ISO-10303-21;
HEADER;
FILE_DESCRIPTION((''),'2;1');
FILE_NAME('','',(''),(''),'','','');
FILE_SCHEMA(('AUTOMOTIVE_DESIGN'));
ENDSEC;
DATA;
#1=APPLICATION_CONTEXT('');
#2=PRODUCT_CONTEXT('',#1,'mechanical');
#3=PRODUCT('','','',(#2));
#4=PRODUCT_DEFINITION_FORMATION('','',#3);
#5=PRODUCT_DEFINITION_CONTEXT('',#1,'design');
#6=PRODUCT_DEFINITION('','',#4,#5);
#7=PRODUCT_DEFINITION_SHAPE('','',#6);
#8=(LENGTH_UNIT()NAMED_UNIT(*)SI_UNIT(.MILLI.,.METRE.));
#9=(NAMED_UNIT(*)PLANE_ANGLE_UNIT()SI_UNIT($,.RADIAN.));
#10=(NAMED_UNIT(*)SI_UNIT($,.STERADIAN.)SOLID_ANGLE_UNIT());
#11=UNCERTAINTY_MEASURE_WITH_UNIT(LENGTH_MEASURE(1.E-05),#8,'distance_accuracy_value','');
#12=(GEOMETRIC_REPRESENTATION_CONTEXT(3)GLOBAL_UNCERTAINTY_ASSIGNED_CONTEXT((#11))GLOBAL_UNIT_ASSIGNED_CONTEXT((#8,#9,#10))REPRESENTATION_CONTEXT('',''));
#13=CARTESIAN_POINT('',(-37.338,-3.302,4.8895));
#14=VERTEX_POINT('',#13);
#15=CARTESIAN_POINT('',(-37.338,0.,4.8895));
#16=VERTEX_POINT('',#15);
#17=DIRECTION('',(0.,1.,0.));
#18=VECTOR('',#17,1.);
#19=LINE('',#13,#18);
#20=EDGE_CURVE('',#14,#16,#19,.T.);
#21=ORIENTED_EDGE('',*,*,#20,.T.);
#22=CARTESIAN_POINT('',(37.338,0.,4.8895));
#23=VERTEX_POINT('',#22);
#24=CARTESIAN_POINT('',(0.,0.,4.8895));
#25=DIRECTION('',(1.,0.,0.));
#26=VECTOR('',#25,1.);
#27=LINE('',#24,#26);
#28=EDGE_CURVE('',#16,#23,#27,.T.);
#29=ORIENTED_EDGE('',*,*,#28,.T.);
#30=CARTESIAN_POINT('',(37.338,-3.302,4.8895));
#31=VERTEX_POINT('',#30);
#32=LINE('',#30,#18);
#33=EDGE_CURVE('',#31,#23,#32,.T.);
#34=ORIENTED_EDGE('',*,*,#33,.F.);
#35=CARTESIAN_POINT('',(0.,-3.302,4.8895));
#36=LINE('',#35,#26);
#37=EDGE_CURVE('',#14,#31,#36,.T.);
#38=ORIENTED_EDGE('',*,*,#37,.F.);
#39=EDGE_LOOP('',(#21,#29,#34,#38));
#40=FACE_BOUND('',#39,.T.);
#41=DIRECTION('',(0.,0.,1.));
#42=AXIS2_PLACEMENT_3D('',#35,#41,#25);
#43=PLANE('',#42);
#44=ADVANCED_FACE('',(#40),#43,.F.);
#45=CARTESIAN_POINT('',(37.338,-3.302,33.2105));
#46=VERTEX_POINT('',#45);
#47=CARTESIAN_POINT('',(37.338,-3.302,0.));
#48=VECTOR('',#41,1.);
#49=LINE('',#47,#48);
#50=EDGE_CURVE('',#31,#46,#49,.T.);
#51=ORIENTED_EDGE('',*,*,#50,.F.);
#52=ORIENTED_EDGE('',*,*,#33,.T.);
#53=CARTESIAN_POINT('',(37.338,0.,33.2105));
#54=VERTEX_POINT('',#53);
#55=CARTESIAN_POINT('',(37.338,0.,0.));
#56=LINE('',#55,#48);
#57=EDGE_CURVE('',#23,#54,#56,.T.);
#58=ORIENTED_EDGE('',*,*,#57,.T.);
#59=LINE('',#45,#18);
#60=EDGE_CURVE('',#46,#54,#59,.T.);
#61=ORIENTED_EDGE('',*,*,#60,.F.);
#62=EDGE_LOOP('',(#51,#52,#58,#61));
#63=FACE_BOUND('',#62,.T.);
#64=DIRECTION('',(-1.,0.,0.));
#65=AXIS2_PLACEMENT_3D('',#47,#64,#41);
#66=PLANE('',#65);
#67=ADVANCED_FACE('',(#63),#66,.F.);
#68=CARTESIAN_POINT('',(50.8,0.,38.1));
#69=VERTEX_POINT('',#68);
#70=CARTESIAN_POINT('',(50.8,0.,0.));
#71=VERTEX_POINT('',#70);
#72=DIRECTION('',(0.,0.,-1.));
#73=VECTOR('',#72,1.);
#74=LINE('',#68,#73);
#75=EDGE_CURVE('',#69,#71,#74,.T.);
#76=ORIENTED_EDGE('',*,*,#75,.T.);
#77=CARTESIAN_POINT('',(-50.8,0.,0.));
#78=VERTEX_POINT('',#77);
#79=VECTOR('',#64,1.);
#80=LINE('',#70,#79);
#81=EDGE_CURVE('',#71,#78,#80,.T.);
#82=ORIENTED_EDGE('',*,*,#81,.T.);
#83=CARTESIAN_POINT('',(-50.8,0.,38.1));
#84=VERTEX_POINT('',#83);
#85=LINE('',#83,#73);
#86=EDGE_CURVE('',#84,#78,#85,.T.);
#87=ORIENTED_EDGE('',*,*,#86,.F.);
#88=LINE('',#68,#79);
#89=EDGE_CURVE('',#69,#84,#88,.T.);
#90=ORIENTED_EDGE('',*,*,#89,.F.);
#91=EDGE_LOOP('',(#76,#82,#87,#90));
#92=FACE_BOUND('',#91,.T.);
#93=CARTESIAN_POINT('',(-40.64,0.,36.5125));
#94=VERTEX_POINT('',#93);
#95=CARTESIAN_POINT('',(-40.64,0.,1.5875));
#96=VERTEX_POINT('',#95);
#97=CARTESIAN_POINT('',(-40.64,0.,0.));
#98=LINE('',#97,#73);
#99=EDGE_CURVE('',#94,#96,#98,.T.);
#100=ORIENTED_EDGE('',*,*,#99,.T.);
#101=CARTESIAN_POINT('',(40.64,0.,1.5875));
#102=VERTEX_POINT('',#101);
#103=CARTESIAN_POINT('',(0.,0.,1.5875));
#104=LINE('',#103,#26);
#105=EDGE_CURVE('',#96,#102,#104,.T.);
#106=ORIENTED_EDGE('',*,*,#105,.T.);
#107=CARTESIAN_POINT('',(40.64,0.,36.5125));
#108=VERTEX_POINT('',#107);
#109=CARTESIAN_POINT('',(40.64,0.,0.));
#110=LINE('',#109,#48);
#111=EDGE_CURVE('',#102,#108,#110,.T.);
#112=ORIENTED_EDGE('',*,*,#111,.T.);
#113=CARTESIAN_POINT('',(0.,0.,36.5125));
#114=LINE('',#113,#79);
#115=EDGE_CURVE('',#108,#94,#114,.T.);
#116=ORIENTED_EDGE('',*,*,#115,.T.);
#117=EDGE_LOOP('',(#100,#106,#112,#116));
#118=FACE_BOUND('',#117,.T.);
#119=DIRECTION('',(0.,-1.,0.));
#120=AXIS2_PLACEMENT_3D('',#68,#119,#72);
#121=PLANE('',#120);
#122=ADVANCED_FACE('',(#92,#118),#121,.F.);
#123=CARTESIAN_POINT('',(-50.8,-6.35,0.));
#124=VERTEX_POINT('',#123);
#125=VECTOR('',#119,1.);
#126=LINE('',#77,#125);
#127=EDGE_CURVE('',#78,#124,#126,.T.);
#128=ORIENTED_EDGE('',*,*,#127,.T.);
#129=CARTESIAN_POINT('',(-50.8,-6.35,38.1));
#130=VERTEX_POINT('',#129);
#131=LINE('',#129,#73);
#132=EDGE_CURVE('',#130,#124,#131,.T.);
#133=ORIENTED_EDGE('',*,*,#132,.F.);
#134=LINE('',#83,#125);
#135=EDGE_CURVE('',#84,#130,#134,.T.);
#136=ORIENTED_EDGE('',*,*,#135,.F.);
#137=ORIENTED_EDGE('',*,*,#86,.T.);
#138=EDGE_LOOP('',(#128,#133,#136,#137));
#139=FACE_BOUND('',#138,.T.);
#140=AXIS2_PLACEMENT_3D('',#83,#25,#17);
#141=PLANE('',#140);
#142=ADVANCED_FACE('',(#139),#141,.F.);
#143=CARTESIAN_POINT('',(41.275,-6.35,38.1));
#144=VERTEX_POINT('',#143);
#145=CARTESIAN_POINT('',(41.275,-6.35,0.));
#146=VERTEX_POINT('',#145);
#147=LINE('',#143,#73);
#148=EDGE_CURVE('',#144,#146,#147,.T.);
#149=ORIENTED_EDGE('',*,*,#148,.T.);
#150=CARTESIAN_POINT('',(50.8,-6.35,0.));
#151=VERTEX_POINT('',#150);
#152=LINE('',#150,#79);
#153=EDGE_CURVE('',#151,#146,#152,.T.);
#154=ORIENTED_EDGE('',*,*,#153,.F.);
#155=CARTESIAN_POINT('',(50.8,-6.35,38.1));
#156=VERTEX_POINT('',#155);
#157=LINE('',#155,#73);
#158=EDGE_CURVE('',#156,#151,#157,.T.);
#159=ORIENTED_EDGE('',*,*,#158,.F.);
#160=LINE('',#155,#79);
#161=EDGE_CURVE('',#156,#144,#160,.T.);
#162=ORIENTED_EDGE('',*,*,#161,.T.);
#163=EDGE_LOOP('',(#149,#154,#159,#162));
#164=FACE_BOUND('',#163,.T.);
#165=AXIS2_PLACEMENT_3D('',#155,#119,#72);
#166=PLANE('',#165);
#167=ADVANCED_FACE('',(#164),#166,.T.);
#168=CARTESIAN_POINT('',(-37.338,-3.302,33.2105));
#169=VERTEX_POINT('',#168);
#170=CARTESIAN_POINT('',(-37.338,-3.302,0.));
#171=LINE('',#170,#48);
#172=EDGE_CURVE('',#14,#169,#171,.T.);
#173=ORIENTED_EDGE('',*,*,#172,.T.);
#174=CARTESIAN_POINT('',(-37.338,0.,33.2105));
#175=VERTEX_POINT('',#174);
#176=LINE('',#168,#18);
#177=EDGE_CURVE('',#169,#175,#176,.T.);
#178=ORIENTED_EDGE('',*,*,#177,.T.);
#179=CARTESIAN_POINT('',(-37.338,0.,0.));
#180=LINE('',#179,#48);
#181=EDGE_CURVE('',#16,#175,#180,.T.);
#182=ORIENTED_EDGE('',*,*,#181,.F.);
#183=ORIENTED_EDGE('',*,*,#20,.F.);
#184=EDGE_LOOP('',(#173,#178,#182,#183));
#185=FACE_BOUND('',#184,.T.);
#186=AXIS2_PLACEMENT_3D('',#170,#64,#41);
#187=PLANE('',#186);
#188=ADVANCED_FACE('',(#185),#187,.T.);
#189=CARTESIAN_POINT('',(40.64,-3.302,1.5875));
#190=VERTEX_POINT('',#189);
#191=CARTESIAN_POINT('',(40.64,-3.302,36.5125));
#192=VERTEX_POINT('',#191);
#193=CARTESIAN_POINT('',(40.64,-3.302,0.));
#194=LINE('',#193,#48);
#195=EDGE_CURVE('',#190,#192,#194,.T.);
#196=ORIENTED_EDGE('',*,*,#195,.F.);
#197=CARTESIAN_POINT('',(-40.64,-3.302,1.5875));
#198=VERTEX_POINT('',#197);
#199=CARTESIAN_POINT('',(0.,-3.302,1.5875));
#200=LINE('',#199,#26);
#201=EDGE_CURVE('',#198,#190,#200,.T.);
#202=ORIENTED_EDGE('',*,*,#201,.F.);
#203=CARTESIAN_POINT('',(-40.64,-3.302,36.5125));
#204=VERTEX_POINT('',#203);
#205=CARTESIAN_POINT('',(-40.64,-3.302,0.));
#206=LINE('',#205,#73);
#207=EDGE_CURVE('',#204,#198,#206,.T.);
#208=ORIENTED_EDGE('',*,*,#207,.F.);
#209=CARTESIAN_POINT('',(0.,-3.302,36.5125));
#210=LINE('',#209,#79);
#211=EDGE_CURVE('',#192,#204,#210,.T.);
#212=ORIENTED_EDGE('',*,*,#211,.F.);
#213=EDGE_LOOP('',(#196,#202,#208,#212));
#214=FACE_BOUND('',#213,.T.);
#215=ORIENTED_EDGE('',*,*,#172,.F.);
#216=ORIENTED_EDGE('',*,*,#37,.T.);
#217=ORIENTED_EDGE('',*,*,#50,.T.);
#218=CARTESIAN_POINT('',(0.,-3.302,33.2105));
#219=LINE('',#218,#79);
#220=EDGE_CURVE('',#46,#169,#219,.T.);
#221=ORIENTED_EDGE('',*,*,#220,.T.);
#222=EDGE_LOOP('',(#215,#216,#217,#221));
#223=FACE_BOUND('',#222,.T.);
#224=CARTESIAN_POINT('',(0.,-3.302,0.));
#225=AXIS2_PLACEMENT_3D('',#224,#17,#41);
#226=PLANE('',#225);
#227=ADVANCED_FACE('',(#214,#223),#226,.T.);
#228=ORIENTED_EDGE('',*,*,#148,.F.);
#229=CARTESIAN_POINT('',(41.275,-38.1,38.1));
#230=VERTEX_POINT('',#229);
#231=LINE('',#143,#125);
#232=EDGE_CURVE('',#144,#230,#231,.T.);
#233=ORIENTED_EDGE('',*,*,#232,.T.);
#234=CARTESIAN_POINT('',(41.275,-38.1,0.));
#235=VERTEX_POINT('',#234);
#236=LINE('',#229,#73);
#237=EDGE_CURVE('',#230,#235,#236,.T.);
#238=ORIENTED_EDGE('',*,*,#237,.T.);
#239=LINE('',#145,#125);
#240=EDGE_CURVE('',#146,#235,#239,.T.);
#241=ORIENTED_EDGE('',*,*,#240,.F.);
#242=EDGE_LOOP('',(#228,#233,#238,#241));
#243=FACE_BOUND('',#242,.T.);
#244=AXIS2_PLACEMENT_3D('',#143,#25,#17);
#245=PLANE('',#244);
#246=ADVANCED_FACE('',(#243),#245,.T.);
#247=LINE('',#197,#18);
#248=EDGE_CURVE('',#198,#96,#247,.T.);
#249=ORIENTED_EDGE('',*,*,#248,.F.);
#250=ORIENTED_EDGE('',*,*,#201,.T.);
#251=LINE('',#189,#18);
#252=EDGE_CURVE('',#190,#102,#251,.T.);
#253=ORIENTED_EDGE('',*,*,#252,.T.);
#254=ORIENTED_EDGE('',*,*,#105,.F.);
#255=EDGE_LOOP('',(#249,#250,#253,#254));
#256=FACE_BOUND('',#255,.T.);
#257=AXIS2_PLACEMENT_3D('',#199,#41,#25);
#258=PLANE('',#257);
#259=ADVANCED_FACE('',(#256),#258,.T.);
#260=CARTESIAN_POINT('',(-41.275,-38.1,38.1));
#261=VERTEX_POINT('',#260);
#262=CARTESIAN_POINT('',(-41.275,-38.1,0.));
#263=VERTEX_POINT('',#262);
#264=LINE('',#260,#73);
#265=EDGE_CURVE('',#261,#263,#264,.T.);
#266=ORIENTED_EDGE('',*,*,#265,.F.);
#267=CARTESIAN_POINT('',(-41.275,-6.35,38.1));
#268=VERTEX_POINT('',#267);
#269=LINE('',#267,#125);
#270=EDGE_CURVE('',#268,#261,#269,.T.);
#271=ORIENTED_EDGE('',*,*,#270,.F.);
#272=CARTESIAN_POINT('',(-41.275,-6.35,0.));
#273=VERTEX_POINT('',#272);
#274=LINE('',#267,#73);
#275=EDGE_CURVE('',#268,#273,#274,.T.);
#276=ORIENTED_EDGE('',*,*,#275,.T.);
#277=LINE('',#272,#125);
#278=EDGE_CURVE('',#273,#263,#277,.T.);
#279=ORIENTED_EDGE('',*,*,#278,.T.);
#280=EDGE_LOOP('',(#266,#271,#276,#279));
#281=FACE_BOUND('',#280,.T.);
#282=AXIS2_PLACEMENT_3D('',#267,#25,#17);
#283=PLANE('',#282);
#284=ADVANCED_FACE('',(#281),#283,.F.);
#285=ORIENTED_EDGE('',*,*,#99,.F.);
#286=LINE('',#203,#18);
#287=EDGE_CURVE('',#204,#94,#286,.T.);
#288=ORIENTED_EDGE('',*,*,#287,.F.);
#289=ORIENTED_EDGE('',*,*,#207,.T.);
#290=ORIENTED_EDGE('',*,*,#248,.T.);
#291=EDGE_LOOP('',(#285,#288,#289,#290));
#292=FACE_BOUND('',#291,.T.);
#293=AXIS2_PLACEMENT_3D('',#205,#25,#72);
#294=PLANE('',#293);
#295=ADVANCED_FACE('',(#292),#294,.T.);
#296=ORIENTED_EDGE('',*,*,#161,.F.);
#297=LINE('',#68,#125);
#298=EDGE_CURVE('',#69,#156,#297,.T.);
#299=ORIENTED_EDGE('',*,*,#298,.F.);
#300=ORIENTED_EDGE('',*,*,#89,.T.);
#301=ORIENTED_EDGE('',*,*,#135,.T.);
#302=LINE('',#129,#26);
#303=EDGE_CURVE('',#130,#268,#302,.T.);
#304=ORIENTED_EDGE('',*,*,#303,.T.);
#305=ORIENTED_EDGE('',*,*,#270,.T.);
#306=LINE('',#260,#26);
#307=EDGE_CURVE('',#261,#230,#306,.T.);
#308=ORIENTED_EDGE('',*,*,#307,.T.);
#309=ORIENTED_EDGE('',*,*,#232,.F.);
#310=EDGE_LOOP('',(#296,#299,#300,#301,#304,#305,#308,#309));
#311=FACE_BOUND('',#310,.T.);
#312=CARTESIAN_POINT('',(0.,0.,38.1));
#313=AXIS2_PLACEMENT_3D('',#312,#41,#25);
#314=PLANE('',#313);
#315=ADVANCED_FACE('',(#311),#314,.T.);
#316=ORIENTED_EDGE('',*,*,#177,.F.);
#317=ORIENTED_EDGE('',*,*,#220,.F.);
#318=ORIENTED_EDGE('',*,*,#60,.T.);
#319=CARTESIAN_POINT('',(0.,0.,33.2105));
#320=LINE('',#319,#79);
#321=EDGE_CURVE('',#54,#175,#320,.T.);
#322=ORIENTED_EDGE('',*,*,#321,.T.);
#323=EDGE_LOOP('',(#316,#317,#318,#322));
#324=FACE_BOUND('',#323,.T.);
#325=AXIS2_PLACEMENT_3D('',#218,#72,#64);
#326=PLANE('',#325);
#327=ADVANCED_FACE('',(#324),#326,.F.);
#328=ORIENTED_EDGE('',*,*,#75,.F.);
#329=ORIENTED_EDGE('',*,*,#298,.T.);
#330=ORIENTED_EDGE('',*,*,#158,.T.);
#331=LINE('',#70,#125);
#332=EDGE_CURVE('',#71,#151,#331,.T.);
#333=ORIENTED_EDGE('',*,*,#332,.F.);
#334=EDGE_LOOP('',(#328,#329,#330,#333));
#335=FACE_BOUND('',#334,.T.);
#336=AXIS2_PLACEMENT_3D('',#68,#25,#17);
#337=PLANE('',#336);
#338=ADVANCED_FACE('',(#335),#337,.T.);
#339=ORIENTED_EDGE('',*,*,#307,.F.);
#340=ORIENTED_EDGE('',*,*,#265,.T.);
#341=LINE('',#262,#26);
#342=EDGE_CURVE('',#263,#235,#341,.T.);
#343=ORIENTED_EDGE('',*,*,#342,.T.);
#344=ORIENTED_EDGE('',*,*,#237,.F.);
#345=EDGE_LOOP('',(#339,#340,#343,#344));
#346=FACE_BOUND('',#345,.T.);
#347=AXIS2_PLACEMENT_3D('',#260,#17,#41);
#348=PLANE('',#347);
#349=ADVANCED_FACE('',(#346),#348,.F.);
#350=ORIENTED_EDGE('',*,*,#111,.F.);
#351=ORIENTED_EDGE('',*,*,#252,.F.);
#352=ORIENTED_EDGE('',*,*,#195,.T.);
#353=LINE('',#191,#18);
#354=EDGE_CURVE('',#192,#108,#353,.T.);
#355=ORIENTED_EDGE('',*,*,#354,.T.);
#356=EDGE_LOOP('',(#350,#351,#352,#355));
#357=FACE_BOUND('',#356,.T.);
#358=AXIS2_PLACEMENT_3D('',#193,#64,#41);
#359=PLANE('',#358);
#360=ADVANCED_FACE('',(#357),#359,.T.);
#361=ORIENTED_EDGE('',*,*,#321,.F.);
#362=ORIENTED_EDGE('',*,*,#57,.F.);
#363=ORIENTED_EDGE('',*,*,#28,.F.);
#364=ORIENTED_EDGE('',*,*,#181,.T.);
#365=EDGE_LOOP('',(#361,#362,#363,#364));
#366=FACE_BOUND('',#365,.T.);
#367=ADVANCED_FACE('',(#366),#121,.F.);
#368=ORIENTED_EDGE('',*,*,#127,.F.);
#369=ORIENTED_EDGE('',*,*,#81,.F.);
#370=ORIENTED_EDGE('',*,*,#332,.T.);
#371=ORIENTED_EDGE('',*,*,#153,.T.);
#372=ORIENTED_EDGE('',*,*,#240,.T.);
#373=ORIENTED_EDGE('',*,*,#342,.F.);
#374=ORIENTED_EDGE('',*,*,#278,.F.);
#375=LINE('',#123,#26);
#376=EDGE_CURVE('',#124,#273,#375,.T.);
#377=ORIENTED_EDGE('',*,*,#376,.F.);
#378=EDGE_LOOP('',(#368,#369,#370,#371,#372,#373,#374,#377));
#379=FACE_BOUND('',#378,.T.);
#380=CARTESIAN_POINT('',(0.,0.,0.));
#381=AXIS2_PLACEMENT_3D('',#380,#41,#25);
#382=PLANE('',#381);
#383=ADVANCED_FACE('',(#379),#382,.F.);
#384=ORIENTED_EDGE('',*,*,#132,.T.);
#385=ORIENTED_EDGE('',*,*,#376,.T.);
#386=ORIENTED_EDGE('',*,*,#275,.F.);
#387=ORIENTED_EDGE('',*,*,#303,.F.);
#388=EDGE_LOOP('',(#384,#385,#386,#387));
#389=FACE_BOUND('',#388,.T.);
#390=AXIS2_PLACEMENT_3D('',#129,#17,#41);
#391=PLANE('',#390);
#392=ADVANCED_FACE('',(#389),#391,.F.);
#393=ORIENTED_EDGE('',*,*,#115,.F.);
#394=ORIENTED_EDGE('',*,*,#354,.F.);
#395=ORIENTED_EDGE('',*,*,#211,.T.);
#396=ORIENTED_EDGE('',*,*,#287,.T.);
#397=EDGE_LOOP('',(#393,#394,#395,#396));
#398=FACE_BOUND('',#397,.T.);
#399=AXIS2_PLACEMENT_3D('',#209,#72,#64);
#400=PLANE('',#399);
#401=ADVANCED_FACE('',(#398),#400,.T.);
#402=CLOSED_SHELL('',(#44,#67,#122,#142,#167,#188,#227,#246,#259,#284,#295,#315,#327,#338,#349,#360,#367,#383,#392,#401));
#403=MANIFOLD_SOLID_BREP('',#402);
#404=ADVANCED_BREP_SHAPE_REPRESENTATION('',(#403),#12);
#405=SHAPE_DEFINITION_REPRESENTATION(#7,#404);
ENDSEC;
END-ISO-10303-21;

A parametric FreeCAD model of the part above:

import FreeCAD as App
import Part
import Sketcher
Q = App.Units.Quantity


def add_polygon(sketch, points):
    """Adds a closed chain of lines whose ends are joined by coincident constraints."""
    first, n = sketch.GeometryCount, len(points)
    for a, b in zip(points, points[1:] + points[:1]):
        sketch.addGeometry(Part.LineSegment(App.Vector(*a, 0), App.Vector(*b, 0)), False)
    for i in range(n):
        sketch.addConstraint(Sketcher.Constraint("Coincident", first + i, 2, first + (i + 1) % n, 1))

doc = App.newDocument("Part")
params = doc.addObject("Spreadsheet::Sheet", "Params")
for row, (alias, value) in enumerate([
    ("sketch1_width", "4 in"),
    ("sketch1_width2", "3.25 in"),
    ("sketch1_height", "0.25 in"),
    ("sketch1_height2", "1.25 in"),
    ("pad1_length", "1.5 in"),
    ("sketch2_width", "3.2 in"),
    ("sketch2_width2", "2.94 in"),
    ("sketch2_height", "1.375 in"),
    ("sketch2_height2", "1.115 in"),
    ("pocket1_length", "0.13 in"),
], start=1):
    params.set(f"A{row}", alias)
    params.set(f"B{row}", "=" + value)
    params.setAlias(f"B{row}", alias)

body = doc.addObject("PartDesign::Body", "Body")

# Sketch on XY plane
sketch1 = body.newObject("Sketcher::SketchObject", "Sketch")
sketch1.AttachmentSupport = (doc.getObject("XY_Plane"), [""])
sketch1.MapMode = "FlatFace"
add_polygon(sketch1, [(-51, 0), (-51, -6), (-41, -6), (-41, -38), (41, -38), (41, -6), (51, -6), (51, 0)])  # lines 0-7
sketch1.addConstraint([
    Sketcher.Constraint("Vertical", 0),
    Sketcher.Constraint("Horizontal", 1),
    Sketcher.Constraint("Vertical", 2),
    Sketcher.Constraint("Horizontal", 3),
    Sketcher.Constraint("Vertical", 4),
    Sketcher.Constraint("Horizontal", 5),
    Sketcher.Constraint("Vertical", 6),
    Sketcher.Constraint("Horizontal", 7),
    Sketcher.Constraint("Symmetric", 6, 2, 7, 2, -1, 1),
    Sketcher.Constraint("Symmetric", 1, 2, 4, 2, -2),
    Sketcher.Constraint("DistanceX", 7, 2, 7, 1, Q("4 in")),
    Sketcher.Constraint("DistanceX", 3, 1, 3, 2, Q("3.25 in")),
    Sketcher.Constraint("DistanceY", 0, 2, 0, 1, Q("0.25 in")),
    Sketcher.Constraint("DistanceY", 2, 2, 2, 1, Q("1.25 in")),
])
sketch1.setExpression("Constraints[18]", "Params.sketch1_width")
sketch1.setExpression("Constraints[19]", "Params.sketch1_width2")
sketch1.setExpression("Constraints[20]", "Params.sketch1_height")
sketch1.setExpression("Constraints[21]", "Params.sketch1_height2")
pad1 = body.newObject("PartDesign::Pad", "Pad")
pad1.Profile = sketch1
pad1.setExpression("Length", "Params.pad1_length")

# Sketch on XZ plane
sketch2 = body.newObject("Sketcher::SketchObject", "Sketch001")
sketch2.AttachmentSupport = (doc.getObject("XZ_Plane"), [""])
sketch2.MapMode = "FlatFace"
add_polygon(sketch2, [(-41, 2), (-41, 37), (41, 37), (41, 2)])  # lines 0-3
add_polygon(sketch2, [(37, 33), (-37, 33), (-37, 5), (37, 5)])  # lines 4-7
sketch2.addConstraint([
    Sketcher.Constraint("Vertical", 0),
    Sketcher.Constraint("Horizontal", 1),
    Sketcher.Constraint("Vertical", 2),
    Sketcher.Constraint("Horizontal", 3),
    Sketcher.Constraint("Horizontal", 4),
    Sketcher.Constraint("Vertical", 5),
    Sketcher.Constraint("Horizontal", 6),
    Sketcher.Constraint("Vertical", 7),
    Sketcher.Constraint("DistanceX", 1, 1, 1, 2, Q("3.2 in")),
    Sketcher.Constraint("DistanceX", 4, 2, 4, 1, Q("2.94 in")),
    Sketcher.Constraint("DistanceX", 0, 2, -1, 1, Q("1.6 in")),
    Sketcher.Constraint("DistanceY", 0, 1, 0, 2, Q("1.375 in")),
    Sketcher.Constraint("DistanceY", 5, 2, 5, 1, Q("1.115 in")),
    Sketcher.Constraint("DistanceX", 4, 2, -1, 1, Q("1.47 in")),
    Sketcher.Constraint("DistanceY", 4, 2, 0, 2, Q("0.13 in")),
    Sketcher.Constraint("DistanceY", -1, 1, 0, 2, Q("1.4375 in")),
])
sketch2.setExpression("Constraints[16]", "Params.sketch2_width")
sketch2.setExpression("Constraints[17]", "Params.sketch2_width2")
sketch2.setExpression("Constraints[19]", "Params.sketch2_height")
sketch2.setExpression("Constraints[20]", "Params.sketch2_height2")
pocket1 = body.newObject("PartDesign::Pocket", "Pocket")
pocket1.Profile = sketch2
pocket1.setExpression("Length", "Params.pocket1_length")
pocket1.Reversed = True

doc.recompute()
